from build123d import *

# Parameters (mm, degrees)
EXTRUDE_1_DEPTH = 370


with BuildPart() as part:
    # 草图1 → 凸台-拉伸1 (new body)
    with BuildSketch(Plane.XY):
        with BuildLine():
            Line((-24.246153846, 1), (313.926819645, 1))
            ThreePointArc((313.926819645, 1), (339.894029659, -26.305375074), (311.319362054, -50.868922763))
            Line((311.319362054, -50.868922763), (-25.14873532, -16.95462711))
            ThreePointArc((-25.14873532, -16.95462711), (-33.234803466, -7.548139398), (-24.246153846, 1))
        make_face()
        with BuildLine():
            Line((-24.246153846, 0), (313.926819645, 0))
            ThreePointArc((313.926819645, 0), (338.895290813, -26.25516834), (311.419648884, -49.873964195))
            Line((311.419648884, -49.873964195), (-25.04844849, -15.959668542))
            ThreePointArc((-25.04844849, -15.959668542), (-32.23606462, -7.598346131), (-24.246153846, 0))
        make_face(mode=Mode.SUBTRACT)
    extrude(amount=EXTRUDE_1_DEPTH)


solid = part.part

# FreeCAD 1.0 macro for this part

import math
import FreeCAD as App
import Part
import Sketcher

V = App.Vector
Q = App.Units.Quantity

doc = App.newDocument("Part")
body = doc.addObject("PartDesign::Body", "Body")

# Sketch on XY plane
sketch1 = body.newObject("Sketcher::SketchObject", "Sketch")
sketch1.AttachmentSupport = (doc.getObject("XY_Plane"), [""])
sketch1.MapMode = "FlatFace"
sketch1.addGeometry(Part.LineSegment(V(314, 1, 0), V(-24, 1, 0)), False)
sketch1.addGeometry(Part.ArcOfCircle(Part.Circle(V(-24, -8, 0), V(0, 0, 1), 9), math.radians(90), math.radians(264)), False)
sketch1.addGeometry(Part.LineSegment(V(-25, -17, 0), V(311, -51, 0)), False)
sketch1.addGeometry(Part.ArcOfCircle(Part.Circle(V(314, -25, 0), V(0, 0, 1), 26), math.radians(-96), math.radians(90)), False)
sketch1.addGeometry(Part.LineSegment(V(-24, 0, 0), V(314, 0, 0)), False)
sketch1.addGeometry(Part.ArcOfCircle(Part.Circle(V(314, -25, 0), V(0, 0, 1), 25), math.radians(-96), math.radians(90)), False)
sketch1.addGeometry(Part.LineSegment(V(311, -50, 0), V(-25, -16, 0)), False)
sketch1.addGeometry(Part.ArcOfCircle(Part.Circle(V(-24, -8, 0), V(0, 0, 1), 8), math.radians(90), math.radians(264)), False)
sketch1.addConstraint(Sketcher.Constraint("Tangent", 0, 2, 1, 1))
sketch1.addConstraint(Sketcher.Constraint("Tangent", 1, 2, 2, 1))
sketch1.addConstraint(Sketcher.Constraint("Tangent", 2, 2, 3, 1))
sketch1.addConstraint(Sketcher.Constraint("Tangent", 3, 2, 0, 1))
sketch1.addConstraint(Sketcher.Constraint("Tangent", 4, 2, 5, 2))
sketch1.addConstraint(Sketcher.Constraint("Tangent", 5, 1, 6, 1))
sketch1.addConstraint(Sketcher.Constraint("Tangent", 6, 2, 7, 2))
sketch1.addConstraint(Sketcher.Constraint("Tangent", 7, 1, 4, 1))
sketch1.addConstraint(Sketcher.Constraint("Horizontal", 0))
sketch1.addConstraint(Sketcher.Constraint("Horizontal", 4))
sketch1.addConstraint(Sketcher.Constraint("Coincident", 5, 3, 3, 3))
sketch1.addConstraint(Sketcher.Constraint("Coincident", 7, 3, 1, 3))
sketch1.addConstraint(Sketcher.Constraint("PointOnObject", 4, 2, -1))
sketch1.addConstraint(Sketcher.Constraint("Radius", 1, Q("9 mm")))
sketch1.addConstraint(Sketcher.Constraint("Radius", 3, Q("26 mm")))
sketch1.addConstraint(Sketcher.Constraint("Radius", 5, Q("25 mm")))
sketch1.addConstraint(Sketcher.Constraint("DistanceX", 0, 2, 0, 1, Q("338.172973 mm")))
sketch1.addConstraint(Sketcher.Constraint("DistanceX", -1, 1, 3, 3, Q("313.92682 mm")))
pad1 = body.newObject("PartDesign::Pad", "Pad")
pad1.Profile = sketch1
pad1.Length = 370

doc.recompute()
